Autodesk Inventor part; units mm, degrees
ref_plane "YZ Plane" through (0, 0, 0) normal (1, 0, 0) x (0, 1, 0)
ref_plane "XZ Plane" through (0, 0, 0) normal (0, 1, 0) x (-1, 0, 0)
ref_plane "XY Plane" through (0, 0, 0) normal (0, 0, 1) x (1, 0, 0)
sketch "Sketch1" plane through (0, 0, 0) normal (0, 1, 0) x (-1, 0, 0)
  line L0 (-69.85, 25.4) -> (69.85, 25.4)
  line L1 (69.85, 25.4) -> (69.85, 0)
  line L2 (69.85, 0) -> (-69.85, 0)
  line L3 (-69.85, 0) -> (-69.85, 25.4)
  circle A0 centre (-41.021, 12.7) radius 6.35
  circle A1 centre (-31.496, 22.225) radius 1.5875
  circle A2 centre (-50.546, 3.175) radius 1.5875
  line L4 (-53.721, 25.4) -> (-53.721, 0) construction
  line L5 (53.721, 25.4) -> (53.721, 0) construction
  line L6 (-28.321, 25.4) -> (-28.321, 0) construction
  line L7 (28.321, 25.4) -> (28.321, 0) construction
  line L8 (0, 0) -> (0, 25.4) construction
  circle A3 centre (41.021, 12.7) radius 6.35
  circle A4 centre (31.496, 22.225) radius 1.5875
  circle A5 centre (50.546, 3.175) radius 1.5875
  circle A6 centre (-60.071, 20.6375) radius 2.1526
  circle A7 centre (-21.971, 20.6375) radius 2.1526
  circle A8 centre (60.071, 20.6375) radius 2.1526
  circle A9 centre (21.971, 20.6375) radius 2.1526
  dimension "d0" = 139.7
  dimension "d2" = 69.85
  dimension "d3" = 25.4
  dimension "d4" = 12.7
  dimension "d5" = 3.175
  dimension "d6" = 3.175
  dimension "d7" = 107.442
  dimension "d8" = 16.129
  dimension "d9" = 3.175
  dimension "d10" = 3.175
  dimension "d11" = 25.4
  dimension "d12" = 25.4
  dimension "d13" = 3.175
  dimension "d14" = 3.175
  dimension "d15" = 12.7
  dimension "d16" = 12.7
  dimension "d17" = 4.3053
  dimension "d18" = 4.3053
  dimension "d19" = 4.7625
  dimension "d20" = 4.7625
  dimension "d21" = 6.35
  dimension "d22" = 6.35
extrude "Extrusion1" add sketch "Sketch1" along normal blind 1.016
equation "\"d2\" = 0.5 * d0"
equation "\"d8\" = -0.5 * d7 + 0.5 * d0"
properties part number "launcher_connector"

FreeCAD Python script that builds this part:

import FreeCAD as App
import Part
import Sketcher

V = App.Vector
Q = App.Units.Quantity


def add_polygon(sketch, points):
    """Adds a closed chain of lines whose ends are joined by coincident constraints."""
    first, n = sketch.GeometryCount, len(points)
    for a, b in zip(points, points[1:] + points[:1]):
        sketch.addGeometry(Part.LineSegment(App.Vector(*a, 0), App.Vector(*b, 0)), False)
    for i in range(n):
        sketch.addConstraint(Sketcher.Constraint("Coincident", first + i, 2, first + (i + 1) % n, 1))

doc = App.newDocument("Part")
params = doc.addObject("Spreadsheet::Sheet", "Params")
for row, (alias, value) in enumerate([
    ("sketch1_diameter", "0.5 in"),
    ("sketch1_height", "1 in"),
    ("sketch1_diameter2", "0.125 in"),
    ("sketch1_width", "5.5 in"),
    ("pad1_length", "0.04 in"),
], start=1):
    params.set(f"A{row}", alias)
    params.set(f"B{row}", "=" + value)
    params.setAlias(f"B{row}", alias)

body = doc.addObject("PartDesign::Body", "Body")

# Sketch on XZ plane
sketch1 = doc.addObject("Sketcher::SketchObject", "Sketch")
body.addObject(sketch1)
sketch1.AttachmentSupport = (doc.XZ_Plane, [""])
sketch1.MapMode = "FlatFace"
add_polygon(sketch1, [(-69.8, 25.4), (69.8, 25.4), (69.8, 0), (-69.8, 0)])  # lines 0-3
sketch1.addGeometry(Part.Circle(V(50.5, 3.2, 0), V(0, 0, 1), 1.6), False)  # 4
sketch1.addGeometry(Part.Circle(V(41, 12.7, 0), V(0, 0, 1), 6.3), False)  # 5
sketch1.addGeometry(Part.Circle(V(-50.5, 3.2, 0), V(0, 0, 1), 1.6), False)  # 6
sketch1.addGeometry(Part.Circle(V(-41, 12.7, 0), V(0, 0, 1), 6.3), False)  # 7
sketch1.addGeometry(Part.Circle(V(60.1, 20.6, 0), V(0, 0, 1), 2.2), False)  # 8
sketch1.addGeometry(Part.Circle(V(22, 20.6, 0), V(0, 0, 1), 2.2), False)  # 9
sketch1.addGeometry(Part.Circle(V(31.5, 22.2, 0), V(0, 0, 1), 1.6), False)  # 10
sketch1.addGeometry(Part.Circle(V(-22, 20.6, 0), V(0, 0, 1), 2.2), False)  # 11
sketch1.addGeometry(Part.Circle(V(-31.5, 22.2, 0), V(0, 0, 1), 1.6), False)  # 12
sketch1.addGeometry(Part.Circle(V(-60.1, 20.6, 0), V(0, 0, 1), 2.2), False)  # 13
sketch1.addConstraint([
    Sketcher.Constraint("Horizontal", 0),
    Sketcher.Constraint("Vertical", 1),
    Sketcher.Constraint("Horizontal", 2),
    Sketcher.Constraint("Vertical", 3),
    Sketcher.Constraint("Equal", 4, 6),
    Sketcher.Constraint("Equal", 5, 7),
    Sketcher.Constraint("Equal", 8, 9),
    Sketcher.Constraint("Equal", 6, 10),
    Sketcher.Constraint("Equal", 9, 11),
    Sketcher.Constraint("Equal", 10, 12),
    Sketcher.Constraint("Equal", 11, 13),
    Sketcher.Constraint("Symmetric", 1, 2, 2, 2, -1, 1),
    Sketcher.Constraint("Symmetric", 4, 3, 6, 3, -2),
    Sketcher.Constraint("Symmetric", 5, 3, 7, 3, -2),
    Sketcher.Constraint("Symmetric", 9, 3, 11, 3, -2),
    Sketcher.Constraint("Symmetric", 10, 3, 12, 3, -2),
    Sketcher.Constraint("Symmetric", 8, 3, 13, 3, -2),
    Sketcher.Constraint("Horizontal", 8, 3, 9, 3),
    Sketcher.Constraint("Diameter", 5, Q("0.5 in")),
    Sketcher.Constraint("DistanceY", 1, 2, 1, 1, Q("1 in")),
    Sketcher.Constraint("Diameter", 4, Q("0.125 in")),
    Sketcher.Constraint("DistanceX", 0, 1, 0, 2, Q("5.5 in")),
    Sketcher.Constraint("Diameter", 8, Q("0.1695 in")),
    Sketcher.Constraint("DistanceY", -1, 1, 5, 3, Q("0.5 in")),
    Sketcher.Constraint("DistanceY", -1, 1, 4, 3, Q("0.125 in")),
    Sketcher.Constraint("DistanceY", 8, 3, 0, 2, Q("0.1875 in")),
    Sketcher.Constraint("DistanceY", 10, 3, 0, 2, Q("0.125 in")),
    Sketcher.Constraint("DistanceX", 9, 3, 8, 3, Q("1.5 in")),
    Sketcher.Constraint("DistanceX", -1, 1, 4, 3, Q("1.99 in")),
    Sketcher.Constraint("DistanceX", -1, 1, 10, 3, Q("1.24 in")),
    Sketcher.Constraint("DistanceX", 7, 3, 5, 3, Q("3.23 in")),
    Sketcher.Constraint("DistanceX", 5, 3, 8, 3, Q("0.75 in")),
])
sketch1.setExpression("Constraints[22]", "Params.sketch1_diameter")
sketch1.setExpression("Constraints[23]", "Params.sketch1_height")
sketch1.setExpression("Constraints[24]", "Params.sketch1_diameter2")
sketch1.setExpression("Constraints[25]", "Params.sketch1_width")
pad1 = doc.addObject("PartDesign::Pad", "Pad")
body.addObject(pad1)
pad1.Profile = sketch1
pad1.setExpression("Length", "Params.pad1_length")
pad1.Reversed = True

doc.recompute()
